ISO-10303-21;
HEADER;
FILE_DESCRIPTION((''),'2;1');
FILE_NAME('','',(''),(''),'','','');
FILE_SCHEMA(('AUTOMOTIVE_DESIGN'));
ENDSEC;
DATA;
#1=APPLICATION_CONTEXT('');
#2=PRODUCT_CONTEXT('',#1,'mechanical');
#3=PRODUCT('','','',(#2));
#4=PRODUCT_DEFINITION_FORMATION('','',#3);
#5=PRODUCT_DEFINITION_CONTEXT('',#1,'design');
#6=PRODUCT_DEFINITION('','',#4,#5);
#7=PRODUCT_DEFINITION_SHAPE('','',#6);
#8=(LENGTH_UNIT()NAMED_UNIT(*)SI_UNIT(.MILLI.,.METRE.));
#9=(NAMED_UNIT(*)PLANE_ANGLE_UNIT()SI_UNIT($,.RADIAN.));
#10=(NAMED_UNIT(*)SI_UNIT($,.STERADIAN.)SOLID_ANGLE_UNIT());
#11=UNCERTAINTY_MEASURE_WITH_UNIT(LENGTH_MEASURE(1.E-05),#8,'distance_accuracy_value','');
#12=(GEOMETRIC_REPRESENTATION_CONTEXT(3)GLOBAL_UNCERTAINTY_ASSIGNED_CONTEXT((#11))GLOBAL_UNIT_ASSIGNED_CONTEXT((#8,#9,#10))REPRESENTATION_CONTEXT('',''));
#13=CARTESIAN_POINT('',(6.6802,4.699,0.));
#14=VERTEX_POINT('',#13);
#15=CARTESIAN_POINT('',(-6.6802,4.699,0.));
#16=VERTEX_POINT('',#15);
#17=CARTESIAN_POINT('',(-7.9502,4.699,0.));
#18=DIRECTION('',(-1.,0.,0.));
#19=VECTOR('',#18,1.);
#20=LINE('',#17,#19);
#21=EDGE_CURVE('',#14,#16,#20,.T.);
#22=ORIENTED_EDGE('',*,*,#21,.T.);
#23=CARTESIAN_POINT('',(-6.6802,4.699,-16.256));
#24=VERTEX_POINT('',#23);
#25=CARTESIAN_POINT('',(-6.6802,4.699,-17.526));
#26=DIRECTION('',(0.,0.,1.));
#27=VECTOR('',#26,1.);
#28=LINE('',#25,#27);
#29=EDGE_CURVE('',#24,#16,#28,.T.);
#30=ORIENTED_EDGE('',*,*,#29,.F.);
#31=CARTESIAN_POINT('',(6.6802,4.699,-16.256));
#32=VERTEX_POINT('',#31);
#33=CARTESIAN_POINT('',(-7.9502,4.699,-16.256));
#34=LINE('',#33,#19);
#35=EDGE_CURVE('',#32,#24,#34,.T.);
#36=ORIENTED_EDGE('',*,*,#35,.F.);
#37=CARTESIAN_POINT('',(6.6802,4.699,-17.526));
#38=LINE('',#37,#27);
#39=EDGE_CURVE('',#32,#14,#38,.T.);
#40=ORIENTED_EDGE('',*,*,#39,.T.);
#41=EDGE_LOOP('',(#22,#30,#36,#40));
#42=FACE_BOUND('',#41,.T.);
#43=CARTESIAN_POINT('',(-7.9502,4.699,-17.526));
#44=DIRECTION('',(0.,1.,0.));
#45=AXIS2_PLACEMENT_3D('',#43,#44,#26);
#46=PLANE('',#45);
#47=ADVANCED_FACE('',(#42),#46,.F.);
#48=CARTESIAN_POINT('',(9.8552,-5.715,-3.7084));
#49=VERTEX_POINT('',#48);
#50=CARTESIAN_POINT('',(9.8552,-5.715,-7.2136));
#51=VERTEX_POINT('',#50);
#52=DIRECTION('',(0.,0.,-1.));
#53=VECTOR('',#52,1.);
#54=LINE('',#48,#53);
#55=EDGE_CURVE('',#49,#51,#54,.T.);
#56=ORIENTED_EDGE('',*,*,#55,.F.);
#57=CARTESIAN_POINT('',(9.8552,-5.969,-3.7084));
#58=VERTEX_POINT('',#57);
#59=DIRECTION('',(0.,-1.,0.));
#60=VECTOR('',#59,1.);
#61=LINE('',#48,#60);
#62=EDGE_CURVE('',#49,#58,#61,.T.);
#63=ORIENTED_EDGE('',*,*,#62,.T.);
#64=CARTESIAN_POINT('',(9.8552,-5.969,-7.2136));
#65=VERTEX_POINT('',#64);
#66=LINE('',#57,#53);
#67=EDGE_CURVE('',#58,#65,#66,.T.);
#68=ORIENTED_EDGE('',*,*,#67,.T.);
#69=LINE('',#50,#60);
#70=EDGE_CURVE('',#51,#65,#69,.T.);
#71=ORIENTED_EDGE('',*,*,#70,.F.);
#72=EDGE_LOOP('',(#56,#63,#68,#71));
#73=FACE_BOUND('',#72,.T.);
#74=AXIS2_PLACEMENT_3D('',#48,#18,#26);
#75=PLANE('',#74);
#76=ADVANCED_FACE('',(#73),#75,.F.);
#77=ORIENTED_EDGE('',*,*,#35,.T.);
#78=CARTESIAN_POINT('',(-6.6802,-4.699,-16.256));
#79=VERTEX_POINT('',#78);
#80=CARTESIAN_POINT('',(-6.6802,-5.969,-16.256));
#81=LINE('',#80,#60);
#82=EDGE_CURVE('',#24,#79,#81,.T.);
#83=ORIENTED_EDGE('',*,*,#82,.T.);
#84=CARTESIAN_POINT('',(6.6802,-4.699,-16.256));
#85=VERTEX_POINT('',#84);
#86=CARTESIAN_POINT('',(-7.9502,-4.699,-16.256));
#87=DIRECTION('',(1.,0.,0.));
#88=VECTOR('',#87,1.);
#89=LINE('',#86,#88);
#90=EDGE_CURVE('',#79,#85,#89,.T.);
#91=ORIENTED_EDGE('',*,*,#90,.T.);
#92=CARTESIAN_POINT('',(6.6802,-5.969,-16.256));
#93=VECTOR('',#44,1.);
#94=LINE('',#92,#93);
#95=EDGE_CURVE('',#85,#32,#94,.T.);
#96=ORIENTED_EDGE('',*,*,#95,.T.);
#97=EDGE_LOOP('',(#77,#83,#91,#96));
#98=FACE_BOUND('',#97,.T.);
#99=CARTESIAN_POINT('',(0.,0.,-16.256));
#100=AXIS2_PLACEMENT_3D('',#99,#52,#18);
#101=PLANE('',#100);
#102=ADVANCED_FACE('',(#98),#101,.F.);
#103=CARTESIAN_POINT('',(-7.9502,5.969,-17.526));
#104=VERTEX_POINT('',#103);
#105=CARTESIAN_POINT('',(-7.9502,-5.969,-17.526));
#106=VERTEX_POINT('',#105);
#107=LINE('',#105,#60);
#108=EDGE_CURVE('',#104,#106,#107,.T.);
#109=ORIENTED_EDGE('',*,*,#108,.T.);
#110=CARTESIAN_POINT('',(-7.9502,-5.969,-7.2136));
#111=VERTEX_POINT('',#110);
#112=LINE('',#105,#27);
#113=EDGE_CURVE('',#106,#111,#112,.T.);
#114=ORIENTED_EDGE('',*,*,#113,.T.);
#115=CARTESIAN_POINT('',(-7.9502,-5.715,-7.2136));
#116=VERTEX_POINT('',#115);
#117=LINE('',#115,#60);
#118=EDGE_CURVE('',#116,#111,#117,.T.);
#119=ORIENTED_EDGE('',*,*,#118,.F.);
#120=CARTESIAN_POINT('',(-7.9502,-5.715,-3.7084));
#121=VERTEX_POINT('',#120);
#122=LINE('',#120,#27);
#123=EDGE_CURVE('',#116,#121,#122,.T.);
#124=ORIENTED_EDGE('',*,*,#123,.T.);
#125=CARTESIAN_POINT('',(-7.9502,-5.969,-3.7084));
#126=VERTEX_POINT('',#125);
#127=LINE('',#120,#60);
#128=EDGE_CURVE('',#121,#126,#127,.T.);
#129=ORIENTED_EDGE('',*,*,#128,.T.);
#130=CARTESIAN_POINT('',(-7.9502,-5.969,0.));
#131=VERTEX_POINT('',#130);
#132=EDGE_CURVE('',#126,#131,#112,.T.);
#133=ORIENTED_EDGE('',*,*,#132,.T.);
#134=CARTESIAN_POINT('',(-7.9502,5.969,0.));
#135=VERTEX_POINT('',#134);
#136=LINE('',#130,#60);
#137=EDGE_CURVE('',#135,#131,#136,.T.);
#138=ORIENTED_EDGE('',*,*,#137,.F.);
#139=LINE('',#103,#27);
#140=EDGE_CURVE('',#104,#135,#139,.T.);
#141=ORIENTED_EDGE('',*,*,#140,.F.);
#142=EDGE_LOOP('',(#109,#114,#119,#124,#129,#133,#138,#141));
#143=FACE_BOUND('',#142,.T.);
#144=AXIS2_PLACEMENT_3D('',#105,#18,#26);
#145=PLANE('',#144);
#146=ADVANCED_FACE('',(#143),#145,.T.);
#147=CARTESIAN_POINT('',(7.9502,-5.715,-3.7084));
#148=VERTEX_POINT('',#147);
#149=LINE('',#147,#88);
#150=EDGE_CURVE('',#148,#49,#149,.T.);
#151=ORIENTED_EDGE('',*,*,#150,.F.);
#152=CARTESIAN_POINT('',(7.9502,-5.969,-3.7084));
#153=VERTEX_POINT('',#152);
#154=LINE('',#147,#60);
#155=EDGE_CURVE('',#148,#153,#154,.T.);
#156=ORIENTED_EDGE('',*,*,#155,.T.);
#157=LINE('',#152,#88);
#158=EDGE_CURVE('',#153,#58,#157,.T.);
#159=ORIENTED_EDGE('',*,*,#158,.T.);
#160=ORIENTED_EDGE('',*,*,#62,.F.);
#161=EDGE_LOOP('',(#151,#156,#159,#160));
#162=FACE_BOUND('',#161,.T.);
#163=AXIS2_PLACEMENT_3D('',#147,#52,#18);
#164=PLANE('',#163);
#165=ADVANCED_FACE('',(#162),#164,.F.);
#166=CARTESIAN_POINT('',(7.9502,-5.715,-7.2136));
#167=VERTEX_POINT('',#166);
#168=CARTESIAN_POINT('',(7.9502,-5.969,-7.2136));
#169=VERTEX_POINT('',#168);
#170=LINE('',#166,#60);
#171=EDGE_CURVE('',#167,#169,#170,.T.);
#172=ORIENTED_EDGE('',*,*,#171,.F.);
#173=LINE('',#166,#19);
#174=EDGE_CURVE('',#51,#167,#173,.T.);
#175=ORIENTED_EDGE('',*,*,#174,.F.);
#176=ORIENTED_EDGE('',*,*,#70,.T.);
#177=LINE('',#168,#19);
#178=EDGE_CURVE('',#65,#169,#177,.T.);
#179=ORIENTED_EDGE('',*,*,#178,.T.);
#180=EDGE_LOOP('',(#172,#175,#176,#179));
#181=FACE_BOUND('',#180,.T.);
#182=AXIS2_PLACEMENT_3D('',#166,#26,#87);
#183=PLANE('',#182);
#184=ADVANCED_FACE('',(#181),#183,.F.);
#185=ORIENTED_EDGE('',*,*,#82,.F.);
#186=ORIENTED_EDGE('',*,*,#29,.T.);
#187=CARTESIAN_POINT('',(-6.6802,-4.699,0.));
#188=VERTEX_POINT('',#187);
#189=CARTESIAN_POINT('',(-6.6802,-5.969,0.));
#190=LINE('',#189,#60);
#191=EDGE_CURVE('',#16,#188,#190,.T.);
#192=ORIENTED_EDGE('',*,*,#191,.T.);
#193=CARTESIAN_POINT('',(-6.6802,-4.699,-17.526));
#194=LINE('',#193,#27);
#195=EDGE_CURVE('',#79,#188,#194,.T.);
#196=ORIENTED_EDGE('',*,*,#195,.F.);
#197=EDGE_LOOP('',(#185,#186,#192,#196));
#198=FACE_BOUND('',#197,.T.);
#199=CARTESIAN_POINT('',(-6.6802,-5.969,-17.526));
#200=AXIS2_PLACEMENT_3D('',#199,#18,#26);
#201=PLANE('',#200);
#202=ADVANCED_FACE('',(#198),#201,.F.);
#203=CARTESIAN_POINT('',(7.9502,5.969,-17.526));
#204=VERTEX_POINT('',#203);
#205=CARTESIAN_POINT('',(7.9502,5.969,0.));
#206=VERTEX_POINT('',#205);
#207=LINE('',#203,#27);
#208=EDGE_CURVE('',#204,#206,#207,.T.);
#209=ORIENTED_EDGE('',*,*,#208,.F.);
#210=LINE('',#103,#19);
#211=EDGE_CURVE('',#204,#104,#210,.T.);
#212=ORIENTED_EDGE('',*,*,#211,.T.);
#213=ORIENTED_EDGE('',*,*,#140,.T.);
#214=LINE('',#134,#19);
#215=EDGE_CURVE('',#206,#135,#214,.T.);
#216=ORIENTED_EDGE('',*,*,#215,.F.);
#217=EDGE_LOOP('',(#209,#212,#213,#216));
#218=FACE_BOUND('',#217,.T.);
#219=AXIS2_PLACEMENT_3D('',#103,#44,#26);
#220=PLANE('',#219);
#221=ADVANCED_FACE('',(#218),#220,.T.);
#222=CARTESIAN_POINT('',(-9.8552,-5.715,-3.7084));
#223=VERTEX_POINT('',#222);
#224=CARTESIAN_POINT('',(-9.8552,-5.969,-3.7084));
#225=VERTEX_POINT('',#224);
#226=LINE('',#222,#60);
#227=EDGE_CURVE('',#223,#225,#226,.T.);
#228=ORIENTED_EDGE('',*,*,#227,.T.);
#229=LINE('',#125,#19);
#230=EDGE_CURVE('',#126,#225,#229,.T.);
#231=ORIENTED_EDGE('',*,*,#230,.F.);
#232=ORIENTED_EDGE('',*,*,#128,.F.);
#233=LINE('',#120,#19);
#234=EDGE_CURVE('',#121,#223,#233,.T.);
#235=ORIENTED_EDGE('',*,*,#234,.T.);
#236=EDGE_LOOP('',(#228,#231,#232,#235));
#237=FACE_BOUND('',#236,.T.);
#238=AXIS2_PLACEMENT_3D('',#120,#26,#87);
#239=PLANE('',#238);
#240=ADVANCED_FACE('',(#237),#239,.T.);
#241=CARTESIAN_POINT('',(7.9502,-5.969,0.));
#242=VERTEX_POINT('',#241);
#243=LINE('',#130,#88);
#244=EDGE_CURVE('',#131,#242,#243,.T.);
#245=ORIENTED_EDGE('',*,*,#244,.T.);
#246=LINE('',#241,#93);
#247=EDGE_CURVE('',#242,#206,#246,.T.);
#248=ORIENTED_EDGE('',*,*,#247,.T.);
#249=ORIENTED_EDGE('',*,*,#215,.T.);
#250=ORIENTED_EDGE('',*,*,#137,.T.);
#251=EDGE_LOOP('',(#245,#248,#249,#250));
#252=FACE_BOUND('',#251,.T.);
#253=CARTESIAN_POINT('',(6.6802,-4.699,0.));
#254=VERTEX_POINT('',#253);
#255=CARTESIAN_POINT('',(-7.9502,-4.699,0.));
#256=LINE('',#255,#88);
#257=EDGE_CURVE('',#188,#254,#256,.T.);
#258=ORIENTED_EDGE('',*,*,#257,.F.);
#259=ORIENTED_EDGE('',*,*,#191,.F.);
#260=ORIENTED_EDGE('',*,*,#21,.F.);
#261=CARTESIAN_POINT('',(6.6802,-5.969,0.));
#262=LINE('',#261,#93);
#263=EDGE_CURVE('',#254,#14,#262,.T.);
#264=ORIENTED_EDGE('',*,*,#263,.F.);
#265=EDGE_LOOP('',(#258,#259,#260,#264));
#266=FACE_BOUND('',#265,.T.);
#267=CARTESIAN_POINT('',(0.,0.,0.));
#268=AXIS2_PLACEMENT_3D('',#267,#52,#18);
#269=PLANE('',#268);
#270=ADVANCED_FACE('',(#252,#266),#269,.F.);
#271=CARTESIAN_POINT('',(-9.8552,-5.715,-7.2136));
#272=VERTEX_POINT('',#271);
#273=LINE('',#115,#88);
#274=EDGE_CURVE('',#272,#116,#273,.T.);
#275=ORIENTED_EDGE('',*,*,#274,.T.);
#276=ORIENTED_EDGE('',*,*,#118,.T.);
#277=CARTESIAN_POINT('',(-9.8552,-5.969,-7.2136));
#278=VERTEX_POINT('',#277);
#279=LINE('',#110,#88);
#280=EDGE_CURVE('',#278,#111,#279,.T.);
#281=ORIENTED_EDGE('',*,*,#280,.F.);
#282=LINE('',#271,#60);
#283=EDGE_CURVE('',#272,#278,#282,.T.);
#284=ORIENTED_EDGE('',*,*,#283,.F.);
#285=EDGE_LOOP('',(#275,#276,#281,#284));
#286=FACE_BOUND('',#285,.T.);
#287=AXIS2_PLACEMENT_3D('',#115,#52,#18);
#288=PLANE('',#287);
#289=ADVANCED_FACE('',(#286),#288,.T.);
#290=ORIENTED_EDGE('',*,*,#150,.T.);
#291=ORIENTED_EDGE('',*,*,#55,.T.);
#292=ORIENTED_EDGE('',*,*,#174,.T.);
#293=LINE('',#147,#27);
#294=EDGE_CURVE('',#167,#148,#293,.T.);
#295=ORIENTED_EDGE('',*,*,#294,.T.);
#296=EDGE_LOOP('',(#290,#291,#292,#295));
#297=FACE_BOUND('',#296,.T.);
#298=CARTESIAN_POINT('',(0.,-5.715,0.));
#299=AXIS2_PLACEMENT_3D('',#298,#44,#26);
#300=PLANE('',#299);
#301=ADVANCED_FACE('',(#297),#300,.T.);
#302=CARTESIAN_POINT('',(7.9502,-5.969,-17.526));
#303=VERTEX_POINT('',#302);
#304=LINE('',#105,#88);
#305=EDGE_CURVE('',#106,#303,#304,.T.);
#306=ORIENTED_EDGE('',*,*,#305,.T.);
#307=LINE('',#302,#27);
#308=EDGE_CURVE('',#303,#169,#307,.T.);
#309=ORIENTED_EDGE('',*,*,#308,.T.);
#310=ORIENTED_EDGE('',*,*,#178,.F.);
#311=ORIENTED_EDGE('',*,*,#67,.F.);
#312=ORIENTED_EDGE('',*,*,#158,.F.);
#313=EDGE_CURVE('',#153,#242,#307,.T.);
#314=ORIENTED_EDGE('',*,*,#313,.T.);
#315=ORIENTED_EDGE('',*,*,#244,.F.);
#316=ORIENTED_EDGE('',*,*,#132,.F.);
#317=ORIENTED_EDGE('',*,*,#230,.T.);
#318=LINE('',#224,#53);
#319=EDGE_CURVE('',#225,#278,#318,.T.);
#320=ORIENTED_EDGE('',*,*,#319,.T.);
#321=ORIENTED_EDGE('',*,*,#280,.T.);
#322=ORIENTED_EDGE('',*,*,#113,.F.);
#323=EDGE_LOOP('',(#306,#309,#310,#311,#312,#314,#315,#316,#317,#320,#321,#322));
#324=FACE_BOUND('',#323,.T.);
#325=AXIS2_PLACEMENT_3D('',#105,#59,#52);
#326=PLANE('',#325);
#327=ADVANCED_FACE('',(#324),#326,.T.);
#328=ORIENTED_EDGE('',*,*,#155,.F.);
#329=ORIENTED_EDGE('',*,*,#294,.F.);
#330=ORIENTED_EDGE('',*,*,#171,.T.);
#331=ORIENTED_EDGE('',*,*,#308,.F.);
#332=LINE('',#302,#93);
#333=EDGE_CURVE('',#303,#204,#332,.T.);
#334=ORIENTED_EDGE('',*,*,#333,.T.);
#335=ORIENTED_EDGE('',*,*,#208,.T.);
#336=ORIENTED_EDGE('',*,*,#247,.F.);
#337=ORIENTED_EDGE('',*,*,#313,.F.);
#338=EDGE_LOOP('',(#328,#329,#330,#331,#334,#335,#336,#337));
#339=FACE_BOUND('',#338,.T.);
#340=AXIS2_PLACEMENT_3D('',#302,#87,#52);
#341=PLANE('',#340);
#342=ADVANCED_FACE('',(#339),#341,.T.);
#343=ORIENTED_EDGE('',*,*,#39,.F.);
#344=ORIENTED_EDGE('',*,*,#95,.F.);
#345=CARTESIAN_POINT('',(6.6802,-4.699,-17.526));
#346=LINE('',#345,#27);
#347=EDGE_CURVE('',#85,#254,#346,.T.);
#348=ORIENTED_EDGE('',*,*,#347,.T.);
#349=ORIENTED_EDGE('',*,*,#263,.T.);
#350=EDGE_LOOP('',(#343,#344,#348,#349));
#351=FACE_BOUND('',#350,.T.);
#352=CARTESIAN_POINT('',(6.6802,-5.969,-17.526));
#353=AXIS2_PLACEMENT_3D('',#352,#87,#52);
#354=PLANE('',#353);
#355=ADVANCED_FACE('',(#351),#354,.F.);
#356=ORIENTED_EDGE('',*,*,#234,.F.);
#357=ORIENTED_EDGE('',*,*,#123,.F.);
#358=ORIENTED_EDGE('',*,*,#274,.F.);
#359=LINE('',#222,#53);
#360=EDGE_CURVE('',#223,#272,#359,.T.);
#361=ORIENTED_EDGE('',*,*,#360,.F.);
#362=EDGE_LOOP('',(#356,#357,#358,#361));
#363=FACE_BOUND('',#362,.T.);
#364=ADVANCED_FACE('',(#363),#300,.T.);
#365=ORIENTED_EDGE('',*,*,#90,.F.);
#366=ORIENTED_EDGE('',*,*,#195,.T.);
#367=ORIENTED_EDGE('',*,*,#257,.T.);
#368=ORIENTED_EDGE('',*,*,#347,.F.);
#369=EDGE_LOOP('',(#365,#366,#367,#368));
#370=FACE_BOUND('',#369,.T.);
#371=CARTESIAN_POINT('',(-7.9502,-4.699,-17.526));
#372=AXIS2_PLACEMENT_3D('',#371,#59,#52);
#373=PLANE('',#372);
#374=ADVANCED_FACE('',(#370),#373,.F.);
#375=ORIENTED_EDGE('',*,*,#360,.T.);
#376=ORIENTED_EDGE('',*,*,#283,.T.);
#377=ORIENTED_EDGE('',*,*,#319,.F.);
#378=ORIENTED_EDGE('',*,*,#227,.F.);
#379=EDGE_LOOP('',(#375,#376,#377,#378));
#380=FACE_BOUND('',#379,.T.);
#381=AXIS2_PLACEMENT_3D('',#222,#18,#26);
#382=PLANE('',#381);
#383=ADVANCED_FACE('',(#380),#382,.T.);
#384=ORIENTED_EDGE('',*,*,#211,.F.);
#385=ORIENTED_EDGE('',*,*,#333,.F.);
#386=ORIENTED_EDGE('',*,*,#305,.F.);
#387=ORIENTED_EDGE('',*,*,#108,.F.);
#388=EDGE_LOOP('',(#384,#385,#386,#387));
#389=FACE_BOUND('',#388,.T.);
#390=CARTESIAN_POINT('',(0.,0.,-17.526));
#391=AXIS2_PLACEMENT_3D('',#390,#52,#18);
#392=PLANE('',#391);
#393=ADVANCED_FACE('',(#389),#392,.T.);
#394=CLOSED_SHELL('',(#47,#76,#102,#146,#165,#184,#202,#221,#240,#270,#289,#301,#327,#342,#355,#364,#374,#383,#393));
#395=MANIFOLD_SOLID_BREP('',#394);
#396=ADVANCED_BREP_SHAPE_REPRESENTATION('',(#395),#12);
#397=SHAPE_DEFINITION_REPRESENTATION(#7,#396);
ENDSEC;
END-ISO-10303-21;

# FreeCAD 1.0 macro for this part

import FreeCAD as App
import Part
import Sketcher
Q = App.Units.Quantity


def faces_at(feature, points):
    """Names of the faces that lie closest to the given points."""
    faces = feature.Shape.Faces
    near = lambda p: min(range(len(faces)), key=lambda i: faces[i].distToShape(Part.Vertex(*p))[0])
    return sorted({f"Face{near(p) + 1}" for p in points})


def add_polygon(sketch, points):
    """Adds a closed chain of lines whose ends are joined by coincident constraints."""
    first, n = sketch.GeometryCount, len(points)
    for a, b in zip(points, points[1:] + points[:1]):
        sketch.addGeometry(Part.LineSegment(App.Vector(*a, 0), App.Vector(*b, 0)), False)
    for i in range(n):
        sketch.addConstraint(Sketcher.Constraint("Coincident", first + i, 2, first + (i + 1) % n, 1))

doc = App.newDocument("Part")
body = doc.addObject("PartDesign::Body", "Body")

sketch1 = body.newObject("Sketcher::SketchObject", "Sketch")
sketch1.AttachmentSupport = (doc.getObject("XY_Plane"), [""])
sketch1.MapMode = "FlatFace"
add_polygon(sketch1, [(-8, 6), (-8, -6), (8, -6), (8, 6)])
sketch1.addConstraint([
    Sketcher.Constraint("Vertical", 0),
    Sketcher.Constraint("Horizontal", 1),
    Sketcher.Constraint("Vertical", 2),
    Sketcher.Constraint("Horizontal", 3),
    Sketcher.Constraint("Symmetric", 0, 2, 2, 2, -1, 1),
    Sketcher.Constraint("DistanceY", 0, 2, 0, 1, Q("0.47 in")),
    Sketcher.Constraint("DistanceX", 1, 1, 1, 2, Q("0.626 in")),
])
pad1 = body.newObject("PartDesign::Pad", "Pad")
pad1.Profile = sketch1
pad1.Length = Q("0.69 in")
pad1.Reversed = True
doc.recompute()

thickness = body.newObject("PartDesign::Thickness", "Thickness")
thickness.Base = (pad1, faces_at(pad1, [(0, 0, 0)]))
thickness.Value = Q("0.05 in")
thickness.Reversed = True
thickness.Join = "Intersection"

sketch2 = body.newObject("Sketcher::SketchObject", "Sketch001")
sketch2.AttachmentSupport = (doc.getObject("XZ_Plane"), [""])
sketch2.MapMode = "FlatFace"
sketch2.AttachmentOffset = App.Placement(App.Vector(0, 0, 0.235 * 25.4), App.Rotation())
add_polygon(sketch2, [(-9.9, -3.7), (-9.9, -7.2), (-8, -7.2), (-8, -3.7)])
sketch2.addConstraint([
    Sketcher.Constraint("Vertical", 0),
    Sketcher.Constraint("Horizontal", 1),
    Sketcher.Constraint("Vertical", 2),
    Sketcher.Constraint("Horizontal", 3),
    Sketcher.Constraint("DistanceX", 1, 1, 1, 2, Q("0.075 in")),
    Sketcher.Constraint("DistanceY", 0, 2, 0, 1, Q("0.138 in")),
    Sketcher.Constraint("DistanceX", 0, 2, -1, 1, Q("0.388 in")),
    Sketcher.Constraint("DistanceY", 0, 2, -1, 1, Q("0.284 in")),
])
pad2 = body.newObject("PartDesign::Pad", "Pad001")
pad2.Profile = sketch2
pad2.Length = Q("0.01 in")
pad2.Reversed = True
doc.recompute()

mirrored = body.newObject("PartDesign::Mirrored", "Mirrored")
mirrored.Originals = [pad2]
mirrored.MirrorPlane = (doc.getObject("YZ_Plane"), [""])
body.Tip = mirrored

doc.recompute()
